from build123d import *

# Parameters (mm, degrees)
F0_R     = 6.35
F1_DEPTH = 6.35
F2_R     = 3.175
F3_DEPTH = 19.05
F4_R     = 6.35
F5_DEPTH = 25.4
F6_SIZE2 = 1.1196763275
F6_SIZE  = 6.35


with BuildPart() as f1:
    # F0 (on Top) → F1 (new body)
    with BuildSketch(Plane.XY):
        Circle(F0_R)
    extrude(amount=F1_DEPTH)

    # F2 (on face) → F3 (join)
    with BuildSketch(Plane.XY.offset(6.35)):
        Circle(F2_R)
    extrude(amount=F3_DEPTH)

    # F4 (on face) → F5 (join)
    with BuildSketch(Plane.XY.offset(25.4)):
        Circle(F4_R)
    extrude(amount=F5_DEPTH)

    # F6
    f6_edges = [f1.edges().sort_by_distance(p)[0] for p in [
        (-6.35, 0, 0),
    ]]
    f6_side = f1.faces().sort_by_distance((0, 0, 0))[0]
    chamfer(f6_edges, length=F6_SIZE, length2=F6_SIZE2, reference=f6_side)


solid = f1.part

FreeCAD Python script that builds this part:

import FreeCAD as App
import Part
import Sketcher
Q = App.Units.Quantity


def edges_at(feature, points):
    """Names of the edges that pass closest to the given points."""
    edges = feature.Shape.Edges
    near = lambda p: min(range(len(edges)), key=lambda i: edges[i].distToShape(Part.Vertex(*p))[0])
    return sorted({f"Edge{near(p) + 1}" for p in points})

doc = App.newDocument("Part")
body = doc.addObject("PartDesign::Body", "Body")

# Sketch on XY plane
sketch1 = body.newObject("Sketcher::SketchObject", "Sketch")
sketch1.AttachmentSupport = (doc.getObject("XY_Plane"), [""])
sketch1.MapMode = "FlatFace"
sketch1.addGeometry(Part.Circle(App.Vector(0, 0, 0), App.Vector(0, 0, 1), 6.35), False)
sketch1.addConstraint([
    Sketcher.Constraint("Coincident", 0, 3, -1, 1),
    Sketcher.Constraint("Diameter", 0, Q("0.5 in")),
])
pad1 = body.newObject("PartDesign::Pad", "Pad")
pad1.Profile = sketch1
pad1.Length = Q("0.25 in")

# Sketch on XY plane
sketch2 = body.newObject("Sketcher::SketchObject", "Sketch001")
sketch2.AttachmentSupport = (doc.getObject("XY_Plane"), [""])
sketch2.MapMode = "FlatFace"
sketch2.AttachmentOffset = App.Placement(App.Vector(0, 0, 0.25 * 25.4), App.Rotation())
sketch2.addGeometry(Part.Circle(App.Vector(0, 0, 0), App.Vector(0, 0, 1), 3.175), False)
sketch2.addConstraint([
    Sketcher.Constraint("Coincident", 0, 3, -1, 1),
    Sketcher.Constraint("Diameter", 0, Q("0.25 in")),
])
pad2 = body.newObject("PartDesign::Pad", "Pad001")
pad2.Profile = sketch2
pad2.Length = Q("0.75 in")

# Sketch on XY plane
sketch3 = body.newObject("Sketcher::SketchObject", "Sketch002")
sketch3.AttachmentSupport = (doc.getObject("XY_Plane"), [""])
sketch3.MapMode = "FlatFace"
sketch3.AttachmentOffset = App.Placement(App.Vector(0, 0, 1 * 25.4), App.Rotation())
sketch3.addGeometry(Part.Circle(App.Vector(0, 0, 0), App.Vector(0, 0, 1), 6.35), False)
sketch3.addConstraint([
    Sketcher.Constraint("Coincident", 0, 3, -1, 1),
    Sketcher.Constraint("Diameter", 0, Q("0.5 in")),
])
pad3 = body.newObject("PartDesign::Pad", "Pad002")
pad3.Profile = sketch3
pad3.Length = Q("1 in")
doc.recompute()

chamfer = body.newObject("PartDesign::Chamfer", "Chamfer")
chamfer.Base = (pad3, edges_at(pad3, [(-6.35, 0, 0)]))
chamfer.ChamferType = "Two distances"
chamfer.Size = Q("0.25 in")
chamfer.Size2 = 1.119676
chamfer.FlipDirection = True

doc.recompute()
